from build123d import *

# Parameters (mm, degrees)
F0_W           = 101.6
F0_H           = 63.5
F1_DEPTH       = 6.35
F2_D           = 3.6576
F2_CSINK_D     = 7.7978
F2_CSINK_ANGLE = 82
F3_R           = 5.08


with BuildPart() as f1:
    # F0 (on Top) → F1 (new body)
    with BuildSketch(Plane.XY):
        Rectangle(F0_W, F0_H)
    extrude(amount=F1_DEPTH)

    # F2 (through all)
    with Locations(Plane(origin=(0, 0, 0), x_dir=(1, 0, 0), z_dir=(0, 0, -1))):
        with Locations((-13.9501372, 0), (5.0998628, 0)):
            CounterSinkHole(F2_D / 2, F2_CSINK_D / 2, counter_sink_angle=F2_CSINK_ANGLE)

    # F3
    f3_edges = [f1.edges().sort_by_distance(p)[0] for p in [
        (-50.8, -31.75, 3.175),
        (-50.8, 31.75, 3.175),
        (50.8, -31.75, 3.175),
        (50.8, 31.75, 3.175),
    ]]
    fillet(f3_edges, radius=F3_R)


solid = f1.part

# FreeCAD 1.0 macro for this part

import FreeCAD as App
import Part
import Sketcher
Q = App.Units.Quantity


def edges_at(feature, points):
    """Names of the edges that pass closest to the given points."""
    edges = feature.Shape.Edges
    near = lambda p: min(range(len(edges)), key=lambda i: edges[i].distToShape(Part.Vertex(*p))[0])
    return sorted({f"Edge{near(p) + 1}" for p in points})

doc = App.newDocument("Part")
params = doc.addObject("Spreadsheet::Sheet", "Params")
for row, (alias, value) in enumerate([
    ("sketch1_width", "4 in"),
    ("sketch1_height", "2.5 in"),
    ("pad1_length", "0.25 in"),
    ("sketch2_diameter", "0.144 in"),
    ("hole_diameter", "0.144 in"),
    ("hole_csink_diameter", "0.307 in"),
    ("fillet_radius", "0.2 in"),
], start=1):
    params.set(f"A{row}", alias)
    params.set(f"B{row}", "=" + value)
    params.setAlias(f"B{row}", alias)

body = doc.addObject("PartDesign::Body", "Body")

# Sketch on XY plane
sketch1 = body.newObject("Sketcher::SketchObject", "Sketch")
sketch1.AttachmentSupport = (doc.getObject("XY_Plane"), [""])
sketch1.MapMode = "FlatFace"
sketch1.addGeometry(Part.LineSegment(App.Vector(-50.8, 31.75, 0), App.Vector(-50.8, -31.75, 0)), False)
sketch1.addGeometry(Part.LineSegment(App.Vector(-50.8, -31.75, 0), App.Vector(50.8, -31.75, 0)), False)
sketch1.addGeometry(Part.LineSegment(App.Vector(50.8, -31.75, 0), App.Vector(50.8, 31.75, 0)), False)
sketch1.addGeometry(Part.LineSegment(App.Vector(50.8, 31.75, 0), App.Vector(-50.8, 31.75, 0)), False)
sketch1.addConstraint(Sketcher.Constraint("Coincident", 0, 2, 1, 1))
sketch1.addConstraint(Sketcher.Constraint("Coincident", 1, 2, 2, 1))
sketch1.addConstraint(Sketcher.Constraint("Coincident", 2, 2, 3, 1))
sketch1.addConstraint(Sketcher.Constraint("Coincident", 3, 2, 0, 1))
sketch1.addConstraint(Sketcher.Constraint("Vertical", 0))
sketch1.addConstraint(Sketcher.Constraint("Horizontal", 1))
sketch1.addConstraint(Sketcher.Constraint("Vertical", 2))
sketch1.addConstraint(Sketcher.Constraint("Horizontal", 3))
sketch1.addConstraint(Sketcher.Constraint("Symmetric", 0, 2, 2, 2, -1, 1))
sketch1.addConstraint(Sketcher.Constraint("DistanceX", 1, 1, 1, 2, Q("4 in")))
sketch1.addConstraint(Sketcher.Constraint("DistanceY", 0, 2, 0, 1, Q("2.5 in")))
sketch1.setExpression("Constraints[9]", "Params.sketch1_width")
sketch1.setExpression("Constraints[10]", "Params.sketch1_height")
pad1 = body.newObject("PartDesign::Pad", "Pad")
pad1.Profile = sketch1
pad1.setExpression("Length", "Params.pad1_length")

# Sketch on XY plane
sketch2 = body.newObject("Sketcher::SketchObject", "Sketch001")
sketch2.AttachmentSupport = (doc.getObject("XY_Plane"), [""])
sketch2.MapMode = "FlatFace"
sketch2.addGeometry(Part.Circle(App.Vector(-13.950137, 0, 0), App.Vector(0, 0, 1), 1.8288), False)
sketch2.addGeometry(Part.Circle(App.Vector(5.099863, 0, 0), App.Vector(0, 0, 1), 1.8288), False)
sketch2.addConstraint(Sketcher.Constraint("Equal", 0, 1))
sketch2.addConstraint(Sketcher.Constraint("PointOnObject", 0, 3, -1))
sketch2.addConstraint(Sketcher.Constraint("PointOnObject", 1, 3, -1))
sketch2.addConstraint(Sketcher.Constraint("Diameter", 0, Q("0.144 in")))
sketch2.addConstraint(Sketcher.Constraint("DistanceX", 0, 3, 1, 3, Q("0.75 in")))
sketch2.addConstraint(Sketcher.Constraint("DistanceX", 0, 3, -1, 1, 13.950137))
sketch2.setExpression("Constraints[3]", "Params.sketch2_diameter")
doc.recompute()
hole = body.newObject("PartDesign::Hole", "Hole")
hole.Profile = sketch2
hole.ThreadType = "None"
hole.setExpression("Diameter", "Params.hole_diameter")
hole.DepthType = "ThroughAll"
hole.HoleCutType = "Countersink"
hole.setExpression("HoleCutDiameter", "Params.hole_csink_diameter")
hole.HoleCutCountersinkAngle = 82
hole.Reversed = True
doc.recompute()

fillet = body.newObject("PartDesign::Fillet", "Fillet")
fillet.Base = (hole, edges_at(hole, [
    (-50.8, -31.75, 3.175),
    (-50.8, 31.75, 3.175),
    (50.8, -31.75, 3.175),
    (50.8, 31.75, 3.175),
]))
fillet.setExpression("Radius", "Params.fillet_radius")

doc.recompute()
